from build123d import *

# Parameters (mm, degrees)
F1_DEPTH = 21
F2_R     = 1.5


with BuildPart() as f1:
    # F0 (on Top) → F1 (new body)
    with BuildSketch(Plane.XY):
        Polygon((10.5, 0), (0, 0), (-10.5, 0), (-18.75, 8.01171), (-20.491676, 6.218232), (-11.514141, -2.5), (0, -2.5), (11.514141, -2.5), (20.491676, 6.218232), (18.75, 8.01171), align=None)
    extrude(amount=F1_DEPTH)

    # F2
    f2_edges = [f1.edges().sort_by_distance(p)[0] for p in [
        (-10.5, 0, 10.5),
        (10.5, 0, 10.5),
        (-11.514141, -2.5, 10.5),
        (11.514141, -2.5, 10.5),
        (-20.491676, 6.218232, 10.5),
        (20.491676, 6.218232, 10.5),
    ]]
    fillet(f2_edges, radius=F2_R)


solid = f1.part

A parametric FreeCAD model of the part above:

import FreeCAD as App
import Part
import Sketcher

V = App.Vector


def edges_at(feature, points):
    """Names of the edges that pass closest to the given points."""
    edges = feature.Shape.Edges
    near = lambda p: min(range(len(edges)), key=lambda i: edges[i].distToShape(Part.Vertex(*p))[0])
    return sorted({f"Edge{near(p) + 1}" for p in points})

doc = App.newDocument("Part")
body = doc.addObject("PartDesign::Body", "Body")

# Sketch on XY plane
sketch1 = body.newObject("Sketcher::SketchObject", "Sketch")
sketch1.AttachmentSupport = (doc.getObject("XY_Plane"), [""])
sketch1.MapMode = "FlatFace"
sketch1.addGeometry([
    Part.LineSegment(V(10.5, 0, 0), V(-10.5, 0, 0)),  # 0
    Part.LineSegment(V(-10.5, 0, 0), V(-18.8, 8, 0)),  # 1
    Part.LineSegment(V(-18.8, 8, 0), V(-20.5, 6.2, 0)),  # 2
    Part.LineSegment(V(-20.5, 6.2, 0), V(-11.5, -2.5, 0)),  # 3
    Part.LineSegment(V(-11.5, -2.5, 0), V(11.5, -2.5, 0)),  # 4
    Part.LineSegment(V(11.5, -2.5, 0), V(20.5, 6.2, 0)),  # 5
    Part.LineSegment(V(20.5, 6.2, 0), V(18.8, 8, 0)),  # 6
    Part.LineSegment(V(18.8, 8, 0), V(10.5, 0, 0)),  # 7
], False)
sketch1.addConstraint([
    Sketcher.Constraint("Coincident", 0, 2, 1, 1),
    Sketcher.Constraint("Coincident", 1, 2, 2, 1),
    Sketcher.Constraint("Coincident", 2, 2, 3, 1),
    Sketcher.Constraint("Coincident", 3, 2, 4, 1),
    Sketcher.Constraint("Coincident", 4, 2, 5, 1),
    Sketcher.Constraint("Coincident", 5, 2, 6, 1),
    Sketcher.Constraint("Coincident", 6, 2, 7, 1),
    Sketcher.Constraint("Coincident", 7, 2, 0, 1),
    Sketcher.Constraint("Horizontal", 0),
    Sketcher.Constraint("Horizontal", 4),
    Sketcher.Constraint("Symmetric", 0, 2, 7, 2, -1, 1),
    Sketcher.Constraint("Symmetric", 2, 2, 5, 2, -2),
    Sketcher.Constraint("Symmetric", 1, 2, 6, 2, -2),
    Sketcher.Constraint("Perpendicular", 1, 2),
    Sketcher.Constraint("Perpendicular", 2, 3),
    Sketcher.Constraint("Perpendicular", 5, 6),
    Sketcher.Constraint("DistanceX", 0, 2, 0, 1, 21.0),
    Sketcher.Constraint("Distance", 1, 11.5),
    Sketcher.Constraint("Distance", 2, 2.5),
    Sketcher.Constraint("DistanceY", 3, 2, -1, 1, 2.5),
    Sketcher.Constraint("DistanceX", 1, 2, 6, 2, 37.5),
])
pad1 = body.newObject("PartDesign::Pad", "Pad")
pad1.Profile = sketch1
pad1.Length = 21
doc.recompute()

fillet = body.newObject("PartDesign::Fillet", "Fillet")
fillet.Base = (pad1, edges_at(pad1, [
    (-10.5, 0, 10.5),
    (10.5, 0, 10.5),
    (-11.514, -2.5, 10.5),
    (11.514, -2.5, 10.5),
    (-20.492, 6.218, 10.5),
    (20.492, 6.218, 10.5),
]))
fillet.Radius = 1.5

doc.recompute()
